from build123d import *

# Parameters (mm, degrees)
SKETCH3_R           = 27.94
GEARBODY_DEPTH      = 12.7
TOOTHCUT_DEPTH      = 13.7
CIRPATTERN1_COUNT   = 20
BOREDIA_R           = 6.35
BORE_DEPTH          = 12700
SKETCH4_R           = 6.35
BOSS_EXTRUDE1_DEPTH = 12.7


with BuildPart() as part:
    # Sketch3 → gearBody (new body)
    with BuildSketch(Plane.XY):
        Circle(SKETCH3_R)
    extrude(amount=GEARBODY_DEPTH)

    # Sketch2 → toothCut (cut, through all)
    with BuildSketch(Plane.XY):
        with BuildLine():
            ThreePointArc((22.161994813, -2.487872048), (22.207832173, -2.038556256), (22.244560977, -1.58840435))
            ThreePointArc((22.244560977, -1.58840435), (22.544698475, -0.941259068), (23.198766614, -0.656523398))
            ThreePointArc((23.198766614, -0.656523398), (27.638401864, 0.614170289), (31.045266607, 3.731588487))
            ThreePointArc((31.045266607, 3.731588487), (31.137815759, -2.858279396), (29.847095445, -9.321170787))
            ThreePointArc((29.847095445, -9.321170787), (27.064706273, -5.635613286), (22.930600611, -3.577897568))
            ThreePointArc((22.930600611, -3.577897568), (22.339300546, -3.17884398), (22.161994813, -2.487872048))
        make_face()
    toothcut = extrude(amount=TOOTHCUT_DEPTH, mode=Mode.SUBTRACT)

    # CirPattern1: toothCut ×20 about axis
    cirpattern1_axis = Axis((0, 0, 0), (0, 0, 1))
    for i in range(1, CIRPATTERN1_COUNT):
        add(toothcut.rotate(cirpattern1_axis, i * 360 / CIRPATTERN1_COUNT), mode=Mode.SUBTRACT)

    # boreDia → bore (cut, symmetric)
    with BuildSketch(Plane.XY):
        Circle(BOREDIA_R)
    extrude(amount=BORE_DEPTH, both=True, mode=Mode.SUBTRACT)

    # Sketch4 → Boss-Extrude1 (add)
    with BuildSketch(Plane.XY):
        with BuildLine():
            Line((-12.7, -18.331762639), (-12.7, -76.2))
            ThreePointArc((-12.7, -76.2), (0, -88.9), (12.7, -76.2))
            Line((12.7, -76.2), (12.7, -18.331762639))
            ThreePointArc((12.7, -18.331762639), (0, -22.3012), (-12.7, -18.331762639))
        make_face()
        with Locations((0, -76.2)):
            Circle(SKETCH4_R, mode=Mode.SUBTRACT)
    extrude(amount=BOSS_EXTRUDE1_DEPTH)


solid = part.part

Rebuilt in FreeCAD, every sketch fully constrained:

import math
import FreeCAD as App
import Part
import Sketcher
from FreeCAD import Vector
Q = App.Units.Quantity

doc = App.newDocument("Part")
body = doc.addObject("PartDesign::Body", "Body")

# Sketch on XY plane
sketch1 = doc.addObject("Sketcher::SketchObject", "Sketch")
body.addObject(sketch1)
sketch1.AttachmentSupport = (doc.XY_Plane, [""])
sketch1.MapMode = "FlatFace"
sketch1.addGeometry(Part.Circle(Vector(0, 0, 0), Vector(0, 0, 1), 28), False)
sketch1.addConstraint(Sketcher.Constraint("Coincident", 0, 3, -1, 1))
sketch1.addConstraint(Sketcher.Constraint("Diameter", 0, Q("2.2 in")))
pad1 = doc.addObject("PartDesign::Pad", "Pad")
body.addObject(pad1)
pad1.Profile = sketch1
pad1.Length = Q("0.5 in")

# Sketch on XY plane
sketch2 = doc.addObject("Sketcher::SketchObject", "Sketch001")
body.addObject(sketch2)
sketch2.AttachmentSupport = (doc.XY_Plane, [""])
sketch2.MapMode = "FlatFace"
sketch2.addGeometry(Part.ArcOfCircle(Part.Circle(Vector(0, 0, 0), Vector(0, 0, 1), 22.3012), math.radians(-6.405122), math.radians(-4.084354)), False)
sketch2.addGeometry(Part.ArcOfCircle(Part.Circle(Vector(23.160294, -2.59994, 0), Vector(0, 0, 1), 1.00457), math.radians(173.594878), math.radians(256.782472)), False)
sketch2.addGeometry(Part.ArcOfCircle(Part.Circle(Vector(20.626166, -13.389403, 0), Vector(0, 0, 1), 10.078495), math.radians(23.806853), math.radians(76.782472)), False)
sketch2.addGeometry(Part.ArcOfCircle(Part.Circle(Vector(0, 0, 0), Vector(0, 0, 1), 31.268728), math.radians(-17.343449), math.radians(6.853974)), False)
sketch2.addGeometry(Part.ArcOfCircle(Part.Circle(Vector(22.719075, 9.410549, 0), Vector(0, 0, 1), 10.078495), math.radians(-87.271947), math.radians(-34.296328)), False)
sketch2.addGeometry(Part.ArcOfCircle(Part.Circle(Vector(23.24658, -1.659955, 0), Vector(0, 0, 1), 1.00457), math.radians(92.728053), math.radians(175.915646)), False)
sketch2.addConstraint(Sketcher.Constraint("Tangent", 0, 1, 1, 1))
sketch2.addConstraint(Sketcher.Constraint("Tangent", 1, 2, 2, 2))
sketch2.addConstraint(Sketcher.Constraint("Coincident", 2, 1, 3, 1))
sketch2.addConstraint(Sketcher.Constraint("Coincident", 3, 2, 4, 2))
sketch2.addConstraint(Sketcher.Constraint("Tangent", 4, 1, 5, 1))
sketch2.addConstraint(Sketcher.Constraint("Tangent", 5, 2, 0, 2))
sketch2.addConstraint(Sketcher.Constraint("Coincident", 0, 3, -1, 1))
sketch2.addConstraint(Sketcher.Constraint("Coincident", 3, 3, -1, 1))
sketch2.addConstraint(Sketcher.Constraint("Equal", 2, 4))
sketch2.addConstraint(Sketcher.Constraint("Equal", 1, 5))
sketch2.addConstraint(Sketcher.Constraint("Radius", 0, Q("0.878 in")))
sketch2.addConstraint(Sketcher.Constraint("Radius", 1, Q("1.00457 mm")))
sketch2.addConstraint(Sketcher.Constraint("Radius", 2, Q("10.078495 mm")))
sketch2.addConstraint(Sketcher.Constraint("Radius", 3, Q("31.268728 mm")))
sketch2.addConstraint(Sketcher.Constraint("DistanceX", 0, 1, 5, 3, Q("0.0427002 in")))
sketch2.addConstraint(Sketcher.Constraint("DistanceX", -1, 1, 1, 2, Q("22.930601 mm")))
sketch2.addConstraint(Sketcher.Constraint("DistanceX", 1, 3, 2, 1, Q("6.686801 mm")))
sketch2.addConstraint(Sketcher.Constraint("DistanceX", 4, 1, 3, 2, Q("7.8465 mm")))
pocket1 = doc.addObject("PartDesign::Pocket", "Pocket")
body.addObject(pocket1)
pocket1.Profile = sketch2
pocket1.Type = "ThroughAll"
pocket1.Reversed = True
doc.recompute()

polarpattern = doc.addObject("PartDesign::PolarPattern", "PolarPattern")
body.addObject(polarpattern)
polarpattern.Originals = [pocket1]
polarpattern.Axis = (doc.Z_Axis, [""])
polarpattern.Angle = 360
polarpattern.Occurrences = 20
body.Tip = polarpattern

# Sketch on XY plane
sketch3 = doc.addObject("Sketcher::SketchObject", "Sketch002")
body.addObject(sketch3)
sketch3.AttachmentSupport = (doc.XY_Plane, [""])
sketch3.MapMode = "FlatFace"
sketch3.addGeometry(Part.Circle(Vector(0, 0, 0), Vector(0, 0, 1), 6), False)
sketch3.addConstraint(Sketcher.Constraint("Coincident", 0, 3, -1, 1))
sketch3.addConstraint(Sketcher.Constraint("Diameter", 0, Q("0.5 in")))
pocket2 = doc.addObject("PartDesign::Pocket", "Pocket001")
body.addObject(pocket2)
pocket2.Profile = sketch3
pocket2.Length = Q("1000 in")
pocket2.Midplane = True

# Sketch on XY plane
sketch4 = doc.addObject("Sketcher::SketchObject", "Sketch003")
body.addObject(sketch4)
sketch4.AttachmentSupport = (doc.XY_Plane, [""])
sketch4.MapMode = "FlatFace"
sketch4.addGeometry(Part.LineSegment(Vector(-13, -18, 0), Vector(-13, -76, 0)), False)
sketch4.addGeometry(Part.ArcOfCircle(Part.Circle(Vector(0, -76, 0), Vector(0, 0, 1), 13), math.radians(180), math.radians(360)), False)
sketch4.addGeometry(Part.LineSegment(Vector(13, -76, 0), Vector(13, -18, 0)), False)
sketch4.addGeometry(Part.ArcOfCircle(Part.Circle(Vector(0, 0, 0), Vector(0, 0, 1), 22), math.radians(-125), math.radians(-55)), False)
sketch4.addGeometry(Part.Circle(Vector(0, -76, 0), Vector(0, 0, 1), 6), False)
sketch4.addConstraint(Sketcher.Constraint("Tangent", 0, 2, 1, 1))
sketch4.addConstraint(Sketcher.Constraint("Tangent", 1, 2, 2, 1))
sketch4.addConstraint(Sketcher.Constraint("Coincident", 2, 2, 3, 2))
sketch4.addConstraint(Sketcher.Constraint("Coincident", 3, 1, 0, 1))
sketch4.addConstraint(Sketcher.Constraint("Vertical", 0))
sketch4.addConstraint(Sketcher.Constraint("Vertical", 2))
sketch4.addConstraint(Sketcher.Constraint("Coincident", 3, 3, -1, 1))
sketch4.addConstraint(Sketcher.Constraint("Coincident", 4, 3, 1, 3))
sketch4.addConstraint(Sketcher.Constraint("PointOnObject", 1, 3, -2))
sketch4.addConstraint(Sketcher.Constraint("Diameter", 4, Q("0.5 in")))
sketch4.addConstraint(Sketcher.Constraint("Radius", 1, Q("0.5 in")))
sketch4.addConstraint(Sketcher.Constraint("DistanceY", 1, 3, -1, 1, Q("3 in")))
sketch4.addConstraint(Sketcher.Constraint("Radius", 3, Q("0.878 in")))
pad2 = doc.addObject("PartDesign::Pad", "Pad001")
body.addObject(pad2)
pad2.Profile = sketch4
pad2.Length = Q("0.5 in")

doc.recompute()
